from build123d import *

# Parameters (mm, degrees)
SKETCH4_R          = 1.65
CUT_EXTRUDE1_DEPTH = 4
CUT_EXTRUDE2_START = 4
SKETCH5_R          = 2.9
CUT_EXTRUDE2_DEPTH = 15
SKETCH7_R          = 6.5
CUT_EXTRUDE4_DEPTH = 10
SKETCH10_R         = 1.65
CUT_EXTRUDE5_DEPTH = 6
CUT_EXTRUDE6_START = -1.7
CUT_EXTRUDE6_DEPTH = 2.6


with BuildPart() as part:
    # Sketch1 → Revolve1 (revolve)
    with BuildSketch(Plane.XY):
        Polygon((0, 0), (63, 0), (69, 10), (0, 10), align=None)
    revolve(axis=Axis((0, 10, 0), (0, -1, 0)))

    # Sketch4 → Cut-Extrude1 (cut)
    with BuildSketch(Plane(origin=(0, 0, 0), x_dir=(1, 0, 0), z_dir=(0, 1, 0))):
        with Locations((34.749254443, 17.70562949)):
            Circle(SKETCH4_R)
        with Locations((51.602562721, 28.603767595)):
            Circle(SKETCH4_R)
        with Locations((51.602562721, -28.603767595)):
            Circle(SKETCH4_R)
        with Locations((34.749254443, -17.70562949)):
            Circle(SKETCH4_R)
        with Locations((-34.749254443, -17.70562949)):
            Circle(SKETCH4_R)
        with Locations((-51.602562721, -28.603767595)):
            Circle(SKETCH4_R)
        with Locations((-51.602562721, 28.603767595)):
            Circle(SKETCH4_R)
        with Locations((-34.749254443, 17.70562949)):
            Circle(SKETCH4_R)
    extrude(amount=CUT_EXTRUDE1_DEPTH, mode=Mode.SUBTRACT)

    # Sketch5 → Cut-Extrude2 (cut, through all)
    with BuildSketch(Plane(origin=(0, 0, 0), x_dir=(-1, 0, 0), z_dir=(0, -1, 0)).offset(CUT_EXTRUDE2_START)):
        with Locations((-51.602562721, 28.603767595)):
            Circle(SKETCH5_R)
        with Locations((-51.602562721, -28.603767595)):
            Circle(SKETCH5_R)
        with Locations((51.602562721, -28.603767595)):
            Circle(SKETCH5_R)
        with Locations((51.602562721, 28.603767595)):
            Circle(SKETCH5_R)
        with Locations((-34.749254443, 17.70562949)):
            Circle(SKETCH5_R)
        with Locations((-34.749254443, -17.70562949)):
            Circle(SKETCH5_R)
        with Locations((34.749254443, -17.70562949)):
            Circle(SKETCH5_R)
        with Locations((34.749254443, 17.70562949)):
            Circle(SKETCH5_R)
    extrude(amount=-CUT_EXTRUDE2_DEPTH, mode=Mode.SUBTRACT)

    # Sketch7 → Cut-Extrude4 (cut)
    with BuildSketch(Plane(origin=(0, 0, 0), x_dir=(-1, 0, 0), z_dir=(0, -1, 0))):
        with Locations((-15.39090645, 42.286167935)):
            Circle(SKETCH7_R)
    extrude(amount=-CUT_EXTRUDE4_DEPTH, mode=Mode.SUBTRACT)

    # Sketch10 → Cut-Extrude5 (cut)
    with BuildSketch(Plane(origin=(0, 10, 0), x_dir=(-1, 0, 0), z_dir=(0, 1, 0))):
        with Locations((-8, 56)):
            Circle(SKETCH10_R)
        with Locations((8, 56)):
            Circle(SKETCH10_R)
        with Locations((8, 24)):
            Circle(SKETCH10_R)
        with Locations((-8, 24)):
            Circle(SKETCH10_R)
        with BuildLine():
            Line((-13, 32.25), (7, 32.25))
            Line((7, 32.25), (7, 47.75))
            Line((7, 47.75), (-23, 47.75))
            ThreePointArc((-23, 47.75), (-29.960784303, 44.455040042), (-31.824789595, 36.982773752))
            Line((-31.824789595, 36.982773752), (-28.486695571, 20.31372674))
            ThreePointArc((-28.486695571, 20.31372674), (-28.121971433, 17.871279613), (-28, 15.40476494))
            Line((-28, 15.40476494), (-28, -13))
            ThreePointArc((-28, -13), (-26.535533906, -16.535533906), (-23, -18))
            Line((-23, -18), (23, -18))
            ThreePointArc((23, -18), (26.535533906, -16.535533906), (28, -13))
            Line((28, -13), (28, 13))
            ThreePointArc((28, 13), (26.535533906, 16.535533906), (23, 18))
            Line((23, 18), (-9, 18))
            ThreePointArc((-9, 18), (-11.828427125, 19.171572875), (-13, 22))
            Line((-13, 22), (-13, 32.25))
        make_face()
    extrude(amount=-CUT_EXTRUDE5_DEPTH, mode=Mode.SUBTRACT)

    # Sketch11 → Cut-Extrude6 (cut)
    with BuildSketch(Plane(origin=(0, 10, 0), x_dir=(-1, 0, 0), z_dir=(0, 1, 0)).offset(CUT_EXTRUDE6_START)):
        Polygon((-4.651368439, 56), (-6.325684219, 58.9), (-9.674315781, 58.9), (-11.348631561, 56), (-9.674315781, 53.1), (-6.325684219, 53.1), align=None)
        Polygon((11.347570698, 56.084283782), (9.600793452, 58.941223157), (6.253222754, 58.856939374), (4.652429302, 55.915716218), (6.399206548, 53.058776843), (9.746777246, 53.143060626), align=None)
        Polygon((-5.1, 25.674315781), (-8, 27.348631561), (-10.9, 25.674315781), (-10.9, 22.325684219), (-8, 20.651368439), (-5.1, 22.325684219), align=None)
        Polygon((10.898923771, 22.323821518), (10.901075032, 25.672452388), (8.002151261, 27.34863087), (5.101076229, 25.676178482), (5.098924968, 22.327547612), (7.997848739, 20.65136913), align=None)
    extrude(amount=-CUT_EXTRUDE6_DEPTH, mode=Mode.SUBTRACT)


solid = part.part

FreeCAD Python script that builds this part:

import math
import FreeCAD as App
import Part
import Sketcher
Q = App.Units.Quantity


def add_polygon(sketch, points):
    """Adds a closed chain of lines whose ends are joined by coincident constraints."""
    first, n = sketch.GeometryCount, len(points)
    for a, b in zip(points, points[1:] + points[:1]):
        sketch.addGeometry(Part.LineSegment(App.Vector(*a, 0), App.Vector(*b, 0)), False)
    for i in range(n):
        sketch.addConstraint(Sketcher.Constraint("Coincident", first + i, 2, first + (i + 1) % n, 1))

doc = App.newDocument("Part")
body = doc.addObject("PartDesign::Body", "Body")

sketch1 = body.newObject("Sketcher::SketchObject", "Sketch")
sketch1.AttachmentSupport = (doc.getObject("XY_Plane"), [""])
sketch1.MapMode = "FlatFace"
add_polygon(sketch1, [(0, 0), (63, 0), (69, 10), (0, 10)])
sketch1.addConstraint([
    Sketcher.Constraint("Horizontal", 0),
    Sketcher.Constraint("Horizontal", 2),
    Sketcher.Constraint("Vertical", 3),
    Sketcher.Constraint("Coincident", 3, 2, -1, 1),
    Sketcher.Constraint("DistanceX", 0, 1, 0, 2, 63.0),
    Sketcher.Constraint("DistanceX", 2, 2, 2, 1, 69.0),
    Sketcher.Constraint("DistanceY", 3, 2, 3, 1, 10.0),
])
revolution = body.newObject("PartDesign::Revolution", "Revolution")
revolution.Profile = sketch1
revolution.ReferenceAxis = (sketch1, ["V_Axis"])
revolution.Angle = 360

sketch2 = body.newObject("Sketcher::SketchObject", "Sketch001")
sketch2.AttachmentSupport = (doc.getObject("XZ_Plane"), [""])
sketch2.MapMode = "FlatFace"
sketch2.addGeometry([
    Part.Circle(App.Vector(34.7, -17.7, 0), App.Vector(0, 0, 1), 1.6),
    Part.Circle(App.Vector(51.6, -28.6, 0), App.Vector(0, 0, 1), 1.6),
    Part.Circle(App.Vector(51.6, 28.6, 0), App.Vector(0, 0, 1), 1.6),
    Part.Circle(App.Vector(34.7, 17.7, 0), App.Vector(0, 0, 1), 1.6),
    Part.Circle(App.Vector(-34.7, 17.7, 0), App.Vector(0, 0, 1), 1.6),
    Part.Circle(App.Vector(-51.6, 28.6, 0), App.Vector(0, 0, 1), 1.6),
    Part.Circle(App.Vector(-51.6, -28.6, 0), App.Vector(0, 0, 1), 1.6),
    Part.Circle(App.Vector(-34.7, -17.7, 0), App.Vector(0, 0, 1), 1.6),
], False)
sketch2.addConstraint([
    Sketcher.Constraint("Equal", 0, 1),
    Sketcher.Constraint("Equal", 1, 2),
    Sketcher.Constraint("Equal", 2, 3),
    Sketcher.Constraint("Equal", 3, 4),
    Sketcher.Constraint("Equal", 4, 5),
    Sketcher.Constraint("Equal", 5, 6),
    Sketcher.Constraint("Equal", 6, 7),
    Sketcher.Constraint("Symmetric", 0, 3, 4, 3, -1, 1),
    Sketcher.Constraint("Symmetric", 1, 3, 5, 3, -1, 1),
    Sketcher.Constraint("Symmetric", 2, 3, 6, 3, -1, 1),
    Sketcher.Constraint("Symmetric", 3, 3, 7, 3, -1, 1),
    Sketcher.Constraint("Symmetric", 3, 3, 4, 3, -2),
    Sketcher.Constraint("Symmetric", 2, 3, 5, 3, -2),
    Sketcher.Constraint("Diameter", 0, 3.3),
    Sketcher.Constraint("DistanceY", 0, 3, -1, 1, 17.705629),
    Sketcher.Constraint("DistanceX", 0, 3, 1, 3, 16.853308),
    Sketcher.Constraint("DistanceY", 1, 3, 0, 3, 10.898138),
    Sketcher.Constraint("DistanceX", 4, 3, 3, 3, 69.498509),
])
pocket1 = body.newObject("PartDesign::Pocket", "Pocket")
pocket1.Profile = sketch2
pocket1.Length = 4

sketch3 = body.newObject("Sketcher::SketchObject", "Sketch002")
sketch3.AttachmentSupport = (doc.getObject("XZ_Plane"), [""])
sketch3.MapMode = "FlatFace"
sketch3.AttachmentOffset = App.Placement(App.Vector(0, 0, 4), App.Rotation())
sketch3.addGeometry([
    Part.Circle(App.Vector(51.6, -28.6, 0), App.Vector(0, 0, 1), 2.9),
    Part.Circle(App.Vector(51.6, 28.6, 0), App.Vector(0, 0, 1), 2.9),
    Part.Circle(App.Vector(-51.6, 28.6, 0), App.Vector(0, 0, 1), 2.9),
    Part.Circle(App.Vector(-51.6, -28.6, 0), App.Vector(0, 0, 1), 2.9),
    Part.Circle(App.Vector(34.7, -17.7, 0), App.Vector(0, 0, 1), 2.9),
    Part.Circle(App.Vector(34.7, 17.7, 0), App.Vector(0, 0, 1), 2.9),
    Part.Circle(App.Vector(-34.7, 17.7, 0), App.Vector(0, 0, 1), 2.9),
    Part.Circle(App.Vector(-34.7, -17.7, 0), App.Vector(0, 0, 1), 2.9),
], False)
sketch3.addConstraint([
    Sketcher.Constraint("Equal", 0, 1),
    Sketcher.Constraint("Equal", 1, 2),
    Sketcher.Constraint("Equal", 2, 3),
    Sketcher.Constraint("Equal", 3, 4),
    Sketcher.Constraint("Equal", 4, 5),
    Sketcher.Constraint("Equal", 5, 6),
    Sketcher.Constraint("Equal", 6, 7),
    Sketcher.Constraint("Symmetric", 0, 3, 2, 3, -1, 1),
    Sketcher.Constraint("Symmetric", 1, 3, 3, 3, -1, 1),
    Sketcher.Constraint("Symmetric", 4, 3, 6, 3, -1, 1),
    Sketcher.Constraint("Symmetric", 5, 3, 7, 3, -1, 1),
    Sketcher.Constraint("Symmetric", 1, 3, 2, 3, -2),
    Sketcher.Constraint("Symmetric", 5, 3, 6, 3, -2),
    Sketcher.Constraint("Diameter", 0, 5.8),
    Sketcher.Constraint("DistanceY", 4, 3, -1, 1, 17.705629),
    Sketcher.Constraint("DistanceX", 4, 3, 0, 3, 16.853308),
    Sketcher.Constraint("DistanceY", 0, 3, 4, 3, 10.898138),
    Sketcher.Constraint("DistanceX", 6, 3, 5, 3, 69.498509),
])
pocket2 = body.newObject("PartDesign::Pocket", "Pocket001")
pocket2.Profile = sketch3
pocket2.Type = "ThroughAll"

sketch4 = body.newObject("Sketcher::SketchObject", "Sketch003")
sketch4.AttachmentSupport = (doc.getObject("XZ_Plane"), [""])
sketch4.MapMode = "FlatFace"
sketch4.addGeometry(Part.Circle(App.Vector(15, -42, 0), App.Vector(0, 0, 1), 6), False)
sketch4.addConstraint([
    Sketcher.Constraint("Diameter", 0, 13.0),
    Sketcher.Constraint("DistanceX", -1, 1, 0, 3, 15.390906),
    Sketcher.Constraint("DistanceY", 0, 3, -1, 1, 42.286168),
])
pocket3 = body.newObject("PartDesign::Pocket", "Pocket002")
pocket3.Profile = sketch4
pocket3.Length = 10

sketch5 = body.newObject("Sketcher::SketchObject", "Sketch004")
sketch5.AttachmentSupport = (doc.getObject("XZ_Plane"), [""])
sketch5.MapMode = "FlatFace"
sketch5.AttachmentOffset = App.Placement(App.Vector(0, 0, -10), App.Rotation())
sketch5.addGeometry([
    Part.Circle(App.Vector(8, 56, 0), App.Vector(0, 0, 1), 1.6),
    Part.Circle(App.Vector(-8, 56, 0), App.Vector(0, 0, 1), 1.6),
    Part.Circle(App.Vector(-8, 24, 0), App.Vector(0, 0, 1), 1.6),
    Part.Circle(App.Vector(8, 24, 0), App.Vector(0, 0, 1), 1.6),
    Part.LineSegment(App.Vector(13, 32.2, 0), App.Vector(-7, 32.2, 0)),
    Part.LineSegment(App.Vector(-7, 32.2, 0), App.Vector(-7, 47.8, 0)),
    Part.LineSegment(App.Vector(-7, 47.8, 0), App.Vector(23, 47.8, 0)),
    Part.ArcOfCircle(Part.Circle(App.Vector(23, 38.7, 0), App.Vector(0, 0, 1), 9), math.radians(-11), math.radians(90)),
    Part.LineSegment(App.Vector(31.8, 37, 0), App.Vector(28.5, 20.3, 0)),
    Part.ArcOfCircle(Part.Circle(App.Vector(53, 15.4, 0), App.Vector(0, 0, 1), 25), math.radians(168.68), math.radians(180)),
    Part.LineSegment(App.Vector(28, 15.4, 0), App.Vector(28, -13, 0)),
    Part.ArcOfCircle(Part.Circle(App.Vector(23, -13, 0), App.Vector(0, 0, 1), 5), math.radians(-90), math.radians(0)),
    Part.LineSegment(App.Vector(23, -18, 0), App.Vector(-23, -18, 0)),
    Part.ArcOfCircle(Part.Circle(App.Vector(-23, -13, 0), App.Vector(0, 0, 1), 5), math.radians(180), math.radians(270)),
    Part.LineSegment(App.Vector(-28, -13, 0), App.Vector(-28, 13, 0)),
    Part.ArcOfCircle(Part.Circle(App.Vector(-23, 13, 0), App.Vector(0, 0, 1), 5), math.radians(90), math.radians(180)),
    Part.LineSegment(App.Vector(-23, 18, 0), App.Vector(9, 18, 0)),
    Part.ArcOfCircle(Part.Circle(App.Vector(9, 22, 0), App.Vector(0, 0, 1), 4), math.radians(-90), math.radians(0)),
    Part.LineSegment(App.Vector(13, 22, 0), App.Vector(13, 32.2, 0)),
], False)
sketch5.addConstraint([
    Sketcher.Constraint("Coincident", 4, 2, 5, 1),
    Sketcher.Constraint("Coincident", 5, 2, 6, 1),
    Sketcher.Constraint("Tangent", 6, 2, 7, 2),
    Sketcher.Constraint("Tangent", 7, 1, 8, 1),
    Sketcher.Constraint("Tangent", 8, 2, 9, 1),
    Sketcher.Constraint("Tangent", 9, 2, 10, 1),
    Sketcher.Constraint("Tangent", 10, 2, 11, 2),
    Sketcher.Constraint("Tangent", 11, 1, 12, 1),
    Sketcher.Constraint("Tangent", 12, 2, 13, 2),
    Sketcher.Constraint("Tangent", 13, 1, 14, 1),
    Sketcher.Constraint("Tangent", 14, 2, 15, 2),
    Sketcher.Constraint("Tangent", 15, 1, 16, 1),
    Sketcher.Constraint("Tangent", 16, 2, 17, 1),
    Sketcher.Constraint("Tangent", 17, 2, 18, 1),
    Sketcher.Constraint("Coincident", 18, 2, 4, 1),
    Sketcher.Constraint("Horizontal", 4),
    Sketcher.Constraint("Vertical", 5),
    Sketcher.Constraint("Horizontal", 6),
    Sketcher.Constraint("Vertical", 10),
    Sketcher.Constraint("Horizontal", 12),
    Sketcher.Constraint("Vertical", 14),
    Sketcher.Constraint("Horizontal", 16),
    Sketcher.Constraint("Vertical", 18),
    Sketcher.Constraint("Equal", 0, 1),
    Sketcher.Constraint("Equal", 1, 2),
    Sketcher.Constraint("Equal", 2, 3),
    Sketcher.Constraint("Equal", 11, 13),
    Sketcher.Constraint("Equal", 13, 15),
    Sketcher.Constraint("Symmetric", 11, 3, 15, 3, -1, 1),
    Sketcher.Constraint("Symmetric", 0, 3, 1, 3, -2),
    Sketcher.Constraint("Symmetric", 2, 3, 3, 3, -2),
    Sketcher.Constraint("Vertical", 1, 3, 2, 3),
    Sketcher.Constraint("Vertical", 7, 3, 11, 3),
    Sketcher.Constraint("Radius", 7, 9.0),
    Sketcher.Constraint("Radius", 9, 25.0),
    Sketcher.Constraint("Radius", 11, 5.0),
    Sketcher.Constraint("Radius", 17, 4.0),
    Sketcher.Constraint("Diameter", 0, 3.3),
    Sketcher.Constraint("DistanceX", 4, 2, 4, 1, 20.0),
    Sketcher.Constraint("DistanceX", 6, 1, 6, 2, 30.0),
    Sketcher.Constraint("DistanceX", 12, 2, 12, 1, 46.0),
    Sketcher.Constraint("DistanceY", 14, 1, 14, 2, 26.0),
    Sketcher.Constraint("Distance", 8, 17.0),
    Sketcher.Constraint("DistanceY", 5, 1, 5, 2, 15.5),
    Sketcher.Constraint("DistanceX", -1, 1, 0, 3, 8.0),
    Sketcher.Constraint("DistanceY", -1, 1, 0, 3, 56.0),
    Sketcher.Constraint("DistanceY", -1, 1, 2, 3, 24.0),
    Sketcher.Constraint("DistanceY", 18, 1, 18, 2, 10.25),
])
pocket4 = body.newObject("PartDesign::Pocket", "Pocket003")
pocket4.Profile = sketch5
pocket4.Length = 6
pocket4.Reversed = True

sketch6 = body.newObject("Sketcher::SketchObject", "Sketch005")
sketch6.AttachmentSupport = (doc.getObject("XZ_Plane"), [""])
sketch6.MapMode = "FlatFace"
sketch6.AttachmentOffset = App.Placement(App.Vector(0, 0, -8.3), App.Rotation())
add_polygon(sketch6, [(4.7, 56), (6.3, 58.9), (9.7, 58.9), (11.3, 56), (9.7, 53.1), (6.3, 53.1)])
add_polygon(sketch6, [(-11.3, 56.1), (-9.6, 58.9), (-6.3, 58.9), (-4.7, 55.9), (-6.4, 53.1), (-9.7, 53.1)])
add_polygon(sketch6, [(5.1, 25.7), (8, 27.3), (10.9, 25.7), (10.9, 22.3), (8, 20.7), (5.1, 22.3)])
add_polygon(sketch6, [(-10.9, 22.3), (-10.9, 25.7), (-8, 27.3), (-5.1, 25.7), (-5.1, 22.3), (-8, 20.7)])
sketch6.addConstraint([
    Sketcher.Constraint("Horizontal", 1),
    Sketcher.Constraint("Horizontal", 4),
    Sketcher.Constraint("Vertical", 14),
    Sketcher.Constraint("Vertical", 17),
    Sketcher.Constraint("Parallel", 0, 3),
    Sketcher.Constraint("Parallel", 2, 5),
    Sketcher.Constraint("Parallel", 6, 9),
    Sketcher.Constraint("Parallel", 7, 10),
    Sketcher.Constraint("Parallel", 8, 11),
    Sketcher.Constraint("Perpendicular", 5, 12),
    Sketcher.Constraint("Perpendicular", 3, 13),
    Sketcher.Constraint("Parallel", 12, 15),
    Sketcher.Constraint("Parallel", 13, 16),
    Sketcher.Constraint("Parallel", 18, 21),
    Sketcher.Constraint("Parallel", 19, 22),
    Sketcher.Constraint("Parallel", 20, 23),
    Sketcher.Constraint("Horizontal", 2, 2, 5, 2),
    Sketcher.Constraint("Horizontal", 14, 2, 16, 2),
    Sketcher.Constraint("Horizontal", 13, 2, 17, 2),
    Sketcher.Constraint("Horizontal", 12, 2, 19, 2),
    Sketcher.Constraint("Horizontal", 15, 2, 22, 2),
    Sketcher.Constraint("Vertical", 1, 2, 3, 2),
    Sketcher.Constraint("Vertical", 0, 2, 4, 2),
    Sketcher.Constraint("Equal", 4, 14),
    Sketcher.Constraint("Equal", 5, 6),
    Sketcher.Constraint("Equal", 6, 7),
    Sketcher.Constraint("Equal", 7, 8),
    Sketcher.Constraint("Equal", 8, 9),
    Sketcher.Constraint("Equal", 11, 12),
    Sketcher.Constraint("Equal", 16, 18),
    Sketcher.Constraint("Equal", 18, 19),
    Sketcher.Constraint("Equal", 19, 20),
    Sketcher.Constraint("Equal", 20, 21),
    Sketcher.Constraint("Angle", 0, Q("60 deg")),
    Sketcher.Constraint("DistanceY", -1, 1, 2, 2, 56.0),
    Sketcher.Constraint("DistanceX", -1, 1, 12, 2, 8.0),
    Sketcher.Constraint("DistanceY", -1, 1, 0, 2, 58.9),
    Sketcher.Constraint("DistanceX", 18, 2, 20, 2, 5.799999),
    Sketcher.Constraint("DistanceX", -1, 1, 2, 2, 11.348632),
    Sketcher.Constraint("DistanceY", -1, 1, 7, 2, 58.856939),
    Sketcher.Constraint("DistanceX", 8, 2, -1, 1, 4.652429),
    Sketcher.Constraint("DistanceY", -1, 1, 10, 2, 53.143061),
    Sketcher.Constraint("DistanceX", 11, 2, -1, 1, 11.347571),
    Sketcher.Constraint("DistanceY", -1, 1, 12, 2, 27.348632),
    Sketcher.Constraint("DistanceX", 19, 2, -1, 1, 8.002151),
    Sketcher.Constraint("DistanceY", -1, 1, 20, 2, 25.676178),
    Sketcher.Constraint("DistanceX", 22, 2, -1, 1, 7.997849),
    Sketcher.Constraint("DistanceX", 6, 2, 5, 2, 14.252162),
])
pocket5 = body.newObject("PartDesign::Pocket", "Pocket004")
pocket5.Profile = sketch6
pocket5.Length = 2.6
pocket5.Reversed = True

doc.recompute()
